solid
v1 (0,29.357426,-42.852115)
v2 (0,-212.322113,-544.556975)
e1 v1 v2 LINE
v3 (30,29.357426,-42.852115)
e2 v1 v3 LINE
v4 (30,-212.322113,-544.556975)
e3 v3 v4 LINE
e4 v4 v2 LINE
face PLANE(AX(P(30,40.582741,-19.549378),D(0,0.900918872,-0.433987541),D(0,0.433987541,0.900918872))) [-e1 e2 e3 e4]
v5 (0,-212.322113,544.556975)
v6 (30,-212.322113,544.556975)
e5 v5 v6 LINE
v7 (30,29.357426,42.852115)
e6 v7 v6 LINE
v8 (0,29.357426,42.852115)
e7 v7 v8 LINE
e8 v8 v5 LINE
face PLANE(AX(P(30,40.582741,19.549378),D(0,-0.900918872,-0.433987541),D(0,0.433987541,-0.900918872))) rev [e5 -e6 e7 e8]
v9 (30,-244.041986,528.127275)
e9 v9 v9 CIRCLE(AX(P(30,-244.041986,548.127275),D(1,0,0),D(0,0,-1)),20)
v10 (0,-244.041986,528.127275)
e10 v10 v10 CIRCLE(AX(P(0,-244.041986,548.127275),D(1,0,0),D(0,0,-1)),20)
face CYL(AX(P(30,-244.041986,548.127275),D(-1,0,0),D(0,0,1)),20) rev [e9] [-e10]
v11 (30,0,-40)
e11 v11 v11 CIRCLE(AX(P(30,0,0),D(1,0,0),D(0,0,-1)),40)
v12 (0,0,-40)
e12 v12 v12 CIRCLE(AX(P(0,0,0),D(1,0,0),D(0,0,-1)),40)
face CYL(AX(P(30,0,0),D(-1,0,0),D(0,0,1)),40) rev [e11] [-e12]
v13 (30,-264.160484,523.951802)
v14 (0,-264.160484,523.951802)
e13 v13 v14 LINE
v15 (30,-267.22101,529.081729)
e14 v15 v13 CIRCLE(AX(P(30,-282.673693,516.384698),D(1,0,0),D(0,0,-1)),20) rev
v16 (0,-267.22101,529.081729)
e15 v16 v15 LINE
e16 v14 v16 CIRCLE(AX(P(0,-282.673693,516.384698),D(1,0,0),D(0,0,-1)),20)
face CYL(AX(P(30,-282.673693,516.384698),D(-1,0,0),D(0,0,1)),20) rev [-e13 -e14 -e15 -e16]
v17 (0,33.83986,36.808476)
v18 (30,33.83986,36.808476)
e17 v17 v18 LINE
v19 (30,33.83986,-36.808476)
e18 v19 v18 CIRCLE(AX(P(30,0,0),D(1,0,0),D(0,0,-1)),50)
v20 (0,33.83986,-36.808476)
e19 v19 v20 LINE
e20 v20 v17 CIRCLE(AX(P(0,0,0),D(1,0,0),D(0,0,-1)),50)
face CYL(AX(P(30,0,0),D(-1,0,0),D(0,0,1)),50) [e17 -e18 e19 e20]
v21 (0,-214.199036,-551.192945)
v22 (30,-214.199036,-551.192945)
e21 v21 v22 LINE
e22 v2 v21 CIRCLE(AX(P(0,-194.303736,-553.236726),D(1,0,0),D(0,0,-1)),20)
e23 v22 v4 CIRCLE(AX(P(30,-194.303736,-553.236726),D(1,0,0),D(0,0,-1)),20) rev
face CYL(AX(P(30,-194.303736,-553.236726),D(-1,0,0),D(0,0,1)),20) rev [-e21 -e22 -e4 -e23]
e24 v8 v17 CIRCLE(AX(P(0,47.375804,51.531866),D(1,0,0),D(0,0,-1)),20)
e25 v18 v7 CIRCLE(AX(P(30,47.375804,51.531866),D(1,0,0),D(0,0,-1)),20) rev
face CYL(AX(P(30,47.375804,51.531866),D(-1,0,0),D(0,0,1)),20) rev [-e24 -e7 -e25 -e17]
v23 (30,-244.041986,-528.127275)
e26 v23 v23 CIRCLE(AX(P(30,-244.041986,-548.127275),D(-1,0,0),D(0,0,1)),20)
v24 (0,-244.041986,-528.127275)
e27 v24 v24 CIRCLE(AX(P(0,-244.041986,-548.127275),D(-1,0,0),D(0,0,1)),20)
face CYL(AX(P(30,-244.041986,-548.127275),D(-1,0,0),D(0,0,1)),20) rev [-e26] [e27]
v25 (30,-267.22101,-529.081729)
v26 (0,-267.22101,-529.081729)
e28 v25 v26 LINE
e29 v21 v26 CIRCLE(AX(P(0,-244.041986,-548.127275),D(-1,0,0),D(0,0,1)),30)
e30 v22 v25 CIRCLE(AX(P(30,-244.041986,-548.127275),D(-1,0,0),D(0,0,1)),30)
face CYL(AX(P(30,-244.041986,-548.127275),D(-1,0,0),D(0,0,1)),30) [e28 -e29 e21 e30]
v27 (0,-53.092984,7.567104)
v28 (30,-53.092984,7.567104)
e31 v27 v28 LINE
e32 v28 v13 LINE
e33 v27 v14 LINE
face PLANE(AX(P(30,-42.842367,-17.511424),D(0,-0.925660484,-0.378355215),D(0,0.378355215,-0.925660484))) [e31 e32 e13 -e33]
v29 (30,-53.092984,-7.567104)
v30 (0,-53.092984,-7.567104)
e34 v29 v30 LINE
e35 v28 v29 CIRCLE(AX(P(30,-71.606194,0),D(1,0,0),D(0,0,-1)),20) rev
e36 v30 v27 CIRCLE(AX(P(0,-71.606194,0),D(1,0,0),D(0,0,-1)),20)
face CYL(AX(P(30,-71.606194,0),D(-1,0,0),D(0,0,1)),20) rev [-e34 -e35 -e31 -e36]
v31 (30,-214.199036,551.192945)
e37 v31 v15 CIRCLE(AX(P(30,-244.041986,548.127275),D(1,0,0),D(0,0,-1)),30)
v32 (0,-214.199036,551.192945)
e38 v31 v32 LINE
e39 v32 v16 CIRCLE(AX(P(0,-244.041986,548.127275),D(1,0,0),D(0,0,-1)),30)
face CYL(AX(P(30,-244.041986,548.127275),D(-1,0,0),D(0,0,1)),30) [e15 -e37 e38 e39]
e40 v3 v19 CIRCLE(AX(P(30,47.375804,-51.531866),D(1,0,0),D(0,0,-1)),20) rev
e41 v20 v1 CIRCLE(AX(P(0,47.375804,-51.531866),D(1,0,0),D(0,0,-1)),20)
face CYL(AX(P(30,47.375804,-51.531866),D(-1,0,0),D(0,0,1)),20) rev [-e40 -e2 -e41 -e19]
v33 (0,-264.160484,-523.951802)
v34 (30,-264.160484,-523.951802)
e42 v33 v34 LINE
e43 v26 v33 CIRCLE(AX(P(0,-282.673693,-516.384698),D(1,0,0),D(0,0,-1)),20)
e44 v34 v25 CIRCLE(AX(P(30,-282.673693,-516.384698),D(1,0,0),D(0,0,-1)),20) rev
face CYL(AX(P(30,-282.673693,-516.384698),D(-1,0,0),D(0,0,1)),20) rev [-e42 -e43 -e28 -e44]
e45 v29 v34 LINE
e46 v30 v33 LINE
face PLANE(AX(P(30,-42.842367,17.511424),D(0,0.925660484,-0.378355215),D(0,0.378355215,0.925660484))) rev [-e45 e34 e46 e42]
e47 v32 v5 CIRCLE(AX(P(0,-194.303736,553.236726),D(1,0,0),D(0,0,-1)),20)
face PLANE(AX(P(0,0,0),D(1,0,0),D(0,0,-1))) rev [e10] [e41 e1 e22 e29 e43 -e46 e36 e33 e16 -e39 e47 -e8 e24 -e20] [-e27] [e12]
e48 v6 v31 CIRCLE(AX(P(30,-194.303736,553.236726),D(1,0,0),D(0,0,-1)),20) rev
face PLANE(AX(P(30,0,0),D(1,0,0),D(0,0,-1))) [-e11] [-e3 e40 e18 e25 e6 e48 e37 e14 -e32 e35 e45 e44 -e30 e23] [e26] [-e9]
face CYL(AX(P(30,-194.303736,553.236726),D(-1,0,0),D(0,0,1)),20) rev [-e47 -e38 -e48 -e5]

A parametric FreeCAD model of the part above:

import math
import FreeCAD as App
import Part
import Sketcher

V = App.Vector


def edges_at(feature, points):
    """Names of the edges that pass closest to the given points."""
    edges = feature.Shape.Edges
    near = lambda p: min(range(len(edges)), key=lambda i: edges[i].distToShape(Part.Vertex(*p))[0])
    return sorted({f"Edge{near(p) + 1}" for p in points})

doc = App.newDocument("Part")
body = doc.addObject("PartDesign::Body", "Body")

# Sketch on YZ plane
sketch1 = body.newObject("Sketcher::SketchObject", "Sketch")
sketch1.AttachmentSupport = (doc.getObject("YZ_Plane"), [""])
sketch1.MapMode = "FlatFace"
sketch1.addGeometry([
    Part.LineSegment(V(-214.041986, -548.127275, 0), V(31.165481, -39.098757, 0)),  # 0
    Part.ArcOfCircle(Part.Circle(V(0, 0, 0), V(0, 0, 1), 50), math.radians(-51.441774), math.radians(51.441774)),  # 1
    Part.LineSegment(V(31.165481, 39.098757, 0), V(-214.041986, 548.127275, 0)),  # 2
    Part.ArcOfCircle(Part.Circle(V(-244.041986, 548.127275, 0), V(0, 0, 1), 30), math.radians(0), math.radians(224.463676)),  # 3
    Part.LineSegment(V(-265.452826, 527.113566, 0), V(-50, 0, 0)),  # 4
    Part.LineSegment(V(-50, 0, 0), V(-265.452826, -527.113566, 0)),  # 5
    Part.ArcOfCircle(Part.Circle(V(-244.041986, -548.127275, 0), V(0, 0, 1), 30), math.radians(135.536324), math.radians(360)),  # 6
    Part.Circle(V(-244.041986, 548.127275, 0), V(0, 0, 1), 20),  # 7
    Part.Circle(V(-244.041986, -548.127275, 0), V(0, 0, 1), 20),  # 8
    Part.Circle(V(0, 0, 0), V(0, 0, 1), 40),  # 9
], False)
sketch1.addConstraint([
    Sketcher.Constraint("Coincident", 0, 2, 1, 1),
    Sketcher.Constraint("Coincident", 1, 2, 2, 1),
    Sketcher.Constraint("Coincident", 2, 2, 3, 1),
    Sketcher.Constraint("Coincident", 3, 2, 4, 1),
    Sketcher.Constraint("Coincident", 4, 2, 5, 1),
    Sketcher.Constraint("Coincident", 5, 2, 6, 1),
    Sketcher.Constraint("Coincident", 6, 2, 0, 1),
    Sketcher.Constraint("Coincident", 1, 3, -1, 1),
    Sketcher.Constraint("Coincident", 9, 3, -1, 1),
    Sketcher.Constraint("Coincident", 7, 3, 3, 3),
    Sketcher.Constraint("Coincident", 8, 3, 6, 3),
    Sketcher.Constraint("Equal", 3, 6),
    Sketcher.Constraint("Equal", 7, 8),
    Sketcher.Constraint("Symmetric", 3, 3, 6, 3, -1),
    Sketcher.Constraint("PointOnObject", 4, 2, -1),
    Sketcher.Constraint("Horizontal", 7, 3, 2, 2),
    Sketcher.Constraint("Horizontal", 8, 3, 6, 2),
    Sketcher.Constraint("Vertical", 0, 2, 1, 2),
    Sketcher.Constraint("Vertical", 3, 2, 5, 2),
    Sketcher.Constraint("Diameter", 7, 40.0),
    Sketcher.Constraint("Diameter", 9, 80.0),
    Sketcher.Constraint("Radius", 1, 50.0),
    Sketcher.Constraint("Radius", 3, 30.0),
    Sketcher.Constraint("DistanceX", 4, 2, -1, 1, 50.0),
    Sketcher.Constraint("Distance", 4, 569.445899),
    Sketcher.Constraint("DistanceX", -1, 1, 0, 2, 31.165481),
    Sketcher.Constraint("DistanceY", 6, 3, 3, 3, 1096.254549),
    Sketcher.Constraint("DistanceX", 3, 2, 3, 3, 21.41084),
])
pad1 = body.newObject("PartDesign::Pad", "Pad")
pad1.Profile = sketch1
pad1.Length = 30
doc.recompute()

fillet = body.newObject("PartDesign::Fillet", "Fillet")
fillet.Base = (pad1, edges_at(pad1, [
    (15, -265.453, -527.114),
    (15, -214.042, -548.127),
    (15, 31.165, -39.099),
    (15, -214.042, 548.127),
    (15, 31.165, 39.099),
    (15, -50, 0),
    (15, -265.453, 527.114),
]))
fillet.Radius = 20

doc.recompute()
